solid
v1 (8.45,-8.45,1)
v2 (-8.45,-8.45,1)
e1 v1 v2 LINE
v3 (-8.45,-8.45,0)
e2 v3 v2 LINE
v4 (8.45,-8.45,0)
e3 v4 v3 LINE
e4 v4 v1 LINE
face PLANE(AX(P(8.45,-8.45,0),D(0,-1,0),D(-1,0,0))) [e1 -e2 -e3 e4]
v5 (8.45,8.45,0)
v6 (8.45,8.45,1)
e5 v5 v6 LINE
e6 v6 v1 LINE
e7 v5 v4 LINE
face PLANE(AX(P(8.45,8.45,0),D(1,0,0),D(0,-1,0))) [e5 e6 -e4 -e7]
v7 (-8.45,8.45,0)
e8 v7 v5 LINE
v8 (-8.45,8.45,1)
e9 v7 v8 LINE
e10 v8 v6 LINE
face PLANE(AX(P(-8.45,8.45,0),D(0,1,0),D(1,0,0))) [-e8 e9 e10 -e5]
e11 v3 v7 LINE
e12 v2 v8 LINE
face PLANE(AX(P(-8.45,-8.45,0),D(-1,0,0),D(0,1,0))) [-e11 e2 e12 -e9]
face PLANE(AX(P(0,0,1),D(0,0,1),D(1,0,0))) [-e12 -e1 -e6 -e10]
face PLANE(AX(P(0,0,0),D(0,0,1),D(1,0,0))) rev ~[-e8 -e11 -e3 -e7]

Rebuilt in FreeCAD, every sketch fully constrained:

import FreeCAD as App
import Part
import Sketcher
Q = App.Units.Quantity

doc = App.newDocument("Part")
body = doc.addObject("PartDesign::Body", "Body")

sketch1 = body.newObject("Sketcher::SketchObject", "Sketch")
sketch1.AttachmentSupport = (doc.getObject("XY_Plane"), [""])
sketch1.MapMode = "FlatFace"
sketch1.addGeometry([
    Part.LineSegment(App.Vector(-8, 8, 0), App.Vector(-8, -8, 0)),
    Part.LineSegment(App.Vector(-8, -8, 0), App.Vector(8, -8, 0)),
    Part.LineSegment(App.Vector(8, -8, 0), App.Vector(8, 8, 0)),
    Part.LineSegment(App.Vector(8, 8, 0), App.Vector(-8, 8, 0)),
], False)
sketch1.addConstraint([
    Sketcher.Constraint("Coincident", 0, 2, 1, 1),
    Sketcher.Constraint("Coincident", 1, 2, 2, 1),
    Sketcher.Constraint("Coincident", 2, 2, 3, 1),
    Sketcher.Constraint("Coincident", 3, 2, 0, 1),
    Sketcher.Constraint("Vertical", 0),
    Sketcher.Constraint("Horizontal", 1),
    Sketcher.Constraint("Vertical", 2),
    Sketcher.Constraint("Horizontal", 3),
    Sketcher.Constraint("Symmetric", 0, 2, 2, 2, -1, 1),
    Sketcher.Constraint("Equal", 3, 0),
    Sketcher.Constraint("DistanceX", 1, 1, 1, 2, Q("16.9 mm")),
])
pad1 = body.newObject("PartDesign::Pad", "Pad")
pad1.Profile = sketch1
pad1.Length = 1

doc.recompute()
